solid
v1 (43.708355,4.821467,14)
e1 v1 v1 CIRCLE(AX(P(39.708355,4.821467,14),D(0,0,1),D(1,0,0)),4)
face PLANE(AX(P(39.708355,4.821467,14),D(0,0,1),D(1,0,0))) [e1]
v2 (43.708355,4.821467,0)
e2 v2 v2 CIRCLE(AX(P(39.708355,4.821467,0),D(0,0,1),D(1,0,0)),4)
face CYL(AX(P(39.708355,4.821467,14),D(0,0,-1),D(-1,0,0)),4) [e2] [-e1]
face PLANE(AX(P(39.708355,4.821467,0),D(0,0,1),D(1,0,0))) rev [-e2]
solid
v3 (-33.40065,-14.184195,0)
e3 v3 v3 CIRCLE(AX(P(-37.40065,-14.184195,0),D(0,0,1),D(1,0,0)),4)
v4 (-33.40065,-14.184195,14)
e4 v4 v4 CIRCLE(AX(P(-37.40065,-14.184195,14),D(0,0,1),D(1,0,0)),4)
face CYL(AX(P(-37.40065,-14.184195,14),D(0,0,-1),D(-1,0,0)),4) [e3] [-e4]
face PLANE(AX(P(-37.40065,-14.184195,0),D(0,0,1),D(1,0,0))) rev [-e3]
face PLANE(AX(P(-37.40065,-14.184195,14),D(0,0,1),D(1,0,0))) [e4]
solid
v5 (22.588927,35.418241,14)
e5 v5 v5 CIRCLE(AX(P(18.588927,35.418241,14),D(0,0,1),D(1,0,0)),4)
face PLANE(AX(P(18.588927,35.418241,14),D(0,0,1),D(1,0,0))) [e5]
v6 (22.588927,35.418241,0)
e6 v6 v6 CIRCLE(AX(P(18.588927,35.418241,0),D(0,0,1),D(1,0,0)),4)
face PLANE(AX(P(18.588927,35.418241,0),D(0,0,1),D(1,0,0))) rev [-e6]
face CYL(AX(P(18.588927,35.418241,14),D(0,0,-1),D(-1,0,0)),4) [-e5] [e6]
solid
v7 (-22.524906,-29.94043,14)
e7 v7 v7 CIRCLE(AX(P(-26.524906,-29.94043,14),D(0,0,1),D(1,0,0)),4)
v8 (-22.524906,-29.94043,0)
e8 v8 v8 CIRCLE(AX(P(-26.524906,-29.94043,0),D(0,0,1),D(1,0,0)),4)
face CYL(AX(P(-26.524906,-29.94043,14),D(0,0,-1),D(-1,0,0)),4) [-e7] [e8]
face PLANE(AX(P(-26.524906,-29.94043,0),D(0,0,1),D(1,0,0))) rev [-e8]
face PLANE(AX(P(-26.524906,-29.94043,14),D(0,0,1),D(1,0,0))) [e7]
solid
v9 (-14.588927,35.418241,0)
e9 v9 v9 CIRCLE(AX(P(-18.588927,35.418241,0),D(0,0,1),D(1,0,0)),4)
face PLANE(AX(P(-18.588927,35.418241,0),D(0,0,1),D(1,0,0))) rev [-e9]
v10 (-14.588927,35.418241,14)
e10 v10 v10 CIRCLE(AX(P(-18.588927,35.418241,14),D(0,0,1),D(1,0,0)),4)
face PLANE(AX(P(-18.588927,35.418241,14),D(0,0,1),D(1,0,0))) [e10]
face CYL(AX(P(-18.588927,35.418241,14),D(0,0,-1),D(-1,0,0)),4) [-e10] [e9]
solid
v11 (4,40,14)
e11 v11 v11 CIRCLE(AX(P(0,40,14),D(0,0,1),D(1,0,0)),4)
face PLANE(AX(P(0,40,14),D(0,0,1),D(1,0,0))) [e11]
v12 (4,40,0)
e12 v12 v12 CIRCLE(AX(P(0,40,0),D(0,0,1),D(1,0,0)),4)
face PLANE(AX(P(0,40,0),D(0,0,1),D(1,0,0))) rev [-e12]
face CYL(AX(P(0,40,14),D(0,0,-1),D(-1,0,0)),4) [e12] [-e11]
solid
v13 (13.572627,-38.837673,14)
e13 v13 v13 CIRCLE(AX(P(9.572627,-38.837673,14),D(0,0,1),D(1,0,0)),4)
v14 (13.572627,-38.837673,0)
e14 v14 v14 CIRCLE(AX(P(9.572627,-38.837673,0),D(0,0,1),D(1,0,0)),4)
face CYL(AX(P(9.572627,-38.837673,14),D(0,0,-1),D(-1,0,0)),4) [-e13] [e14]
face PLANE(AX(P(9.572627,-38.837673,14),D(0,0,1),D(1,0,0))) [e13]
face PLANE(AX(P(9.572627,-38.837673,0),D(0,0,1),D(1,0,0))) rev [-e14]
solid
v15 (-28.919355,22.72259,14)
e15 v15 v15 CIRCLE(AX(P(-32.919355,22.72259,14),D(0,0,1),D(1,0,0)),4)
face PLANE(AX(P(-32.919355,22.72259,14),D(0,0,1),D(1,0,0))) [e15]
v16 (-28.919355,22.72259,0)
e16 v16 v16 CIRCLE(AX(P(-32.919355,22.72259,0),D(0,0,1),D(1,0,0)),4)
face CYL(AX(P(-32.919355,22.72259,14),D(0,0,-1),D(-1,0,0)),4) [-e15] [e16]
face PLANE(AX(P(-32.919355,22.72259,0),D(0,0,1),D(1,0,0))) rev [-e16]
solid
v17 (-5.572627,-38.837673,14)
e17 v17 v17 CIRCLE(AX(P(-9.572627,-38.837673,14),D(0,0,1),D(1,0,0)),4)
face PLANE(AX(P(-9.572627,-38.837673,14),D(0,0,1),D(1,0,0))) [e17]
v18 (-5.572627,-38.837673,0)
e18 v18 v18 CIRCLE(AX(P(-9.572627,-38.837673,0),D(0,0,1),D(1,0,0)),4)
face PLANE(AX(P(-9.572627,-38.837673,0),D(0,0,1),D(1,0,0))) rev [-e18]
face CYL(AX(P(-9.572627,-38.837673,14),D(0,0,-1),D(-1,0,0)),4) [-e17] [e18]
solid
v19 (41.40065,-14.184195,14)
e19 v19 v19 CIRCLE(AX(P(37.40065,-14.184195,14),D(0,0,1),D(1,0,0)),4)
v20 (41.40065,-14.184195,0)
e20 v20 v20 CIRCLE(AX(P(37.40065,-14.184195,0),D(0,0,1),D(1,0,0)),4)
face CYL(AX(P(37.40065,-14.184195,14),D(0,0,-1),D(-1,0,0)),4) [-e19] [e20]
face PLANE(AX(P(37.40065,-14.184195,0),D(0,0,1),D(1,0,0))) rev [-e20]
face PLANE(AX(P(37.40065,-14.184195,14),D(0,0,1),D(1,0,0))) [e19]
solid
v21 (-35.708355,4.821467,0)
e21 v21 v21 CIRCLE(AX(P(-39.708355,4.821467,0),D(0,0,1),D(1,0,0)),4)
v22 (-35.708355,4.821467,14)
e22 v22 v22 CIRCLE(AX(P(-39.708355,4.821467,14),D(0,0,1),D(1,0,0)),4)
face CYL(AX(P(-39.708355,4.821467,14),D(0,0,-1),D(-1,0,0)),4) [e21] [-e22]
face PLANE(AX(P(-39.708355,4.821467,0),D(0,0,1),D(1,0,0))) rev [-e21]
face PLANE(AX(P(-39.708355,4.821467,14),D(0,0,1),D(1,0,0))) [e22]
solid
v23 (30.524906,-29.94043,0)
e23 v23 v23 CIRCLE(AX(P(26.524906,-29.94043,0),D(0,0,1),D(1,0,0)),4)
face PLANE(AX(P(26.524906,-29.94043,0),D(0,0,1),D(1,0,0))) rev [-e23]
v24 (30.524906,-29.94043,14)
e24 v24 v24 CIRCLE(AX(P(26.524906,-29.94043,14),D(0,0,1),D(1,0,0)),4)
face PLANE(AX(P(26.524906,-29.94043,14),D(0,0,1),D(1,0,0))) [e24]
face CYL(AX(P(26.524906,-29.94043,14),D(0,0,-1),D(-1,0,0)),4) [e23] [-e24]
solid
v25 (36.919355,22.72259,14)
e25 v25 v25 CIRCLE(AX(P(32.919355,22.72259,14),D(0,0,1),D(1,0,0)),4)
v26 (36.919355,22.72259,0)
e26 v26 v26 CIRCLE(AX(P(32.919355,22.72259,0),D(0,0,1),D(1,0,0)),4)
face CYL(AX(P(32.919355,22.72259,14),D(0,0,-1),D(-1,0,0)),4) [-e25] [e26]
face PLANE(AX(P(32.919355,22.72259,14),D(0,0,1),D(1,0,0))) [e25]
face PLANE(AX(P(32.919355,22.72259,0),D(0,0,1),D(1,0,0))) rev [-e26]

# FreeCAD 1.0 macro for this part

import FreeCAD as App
import Part
import Sketcher
Q = App.Units.Quantity

doc = App.newDocument("Part")
body = doc.addObject("PartDesign::Body", "Body")

# Sketch on XY plane
sketch1 = body.newObject("Sketcher::SketchObject", "Sketch")
sketch1.AttachmentSupport = (doc.getObject("XY_Plane"), [""])
sketch1.MapMode = "FlatFace"
sketch1.addGeometry(Part.Circle(App.Vector(0, 40, 0), App.Vector(0, 0, 1), 4), False)
sketch1.addConstraint([
    Sketcher.Constraint("PointOnObject", 0, 3, -2),
    Sketcher.Constraint("Diameter", 0, Q("8 mm")),
    Sketcher.Constraint("DistanceY", -1, 1, 0, 3, Q("40 mm")),
])
pad1 = body.newObject("PartDesign::Pad", "Pad")
pad1.Profile = sketch1
pad1.Length = 14
body2 = doc.addObject("PartDesign::Body", "Body001")

# Sketch on XY plane
sketch2 = body2.newObject("Sketcher::SketchObject", "Sketch001")
sketch2.AttachmentSupport = (doc.getObject("XY_Plane001"), [""])
sketch2.MapMode = "FlatFace"
sketch2.addGeometry(Part.Circle(App.Vector(18.6, 35.4, 0), App.Vector(0, 0, 1), 4), False)
sketch2.addConstraint([
    Sketcher.Constraint("Diameter", 0, Q("8 mm")),
    Sketcher.Constraint("DistanceY", -1, 1, 0, 3, Q("35.418241 mm")),
    Sketcher.Constraint("DistanceX", -1, 1, 0, 3, Q("18.588927 mm")),
])
pad2 = body2.newObject("PartDesign::Pad", "Pad001")
pad2.Profile = sketch2
pad2.Length = 14
body3 = doc.addObject("PartDesign::Body", "Body002")

# Sketch on XY plane
sketch3 = body3.newObject("Sketcher::SketchObject", "Sketch002")
sketch3.AttachmentSupport = (doc.getObject("XY_Plane002"), [""])
sketch3.MapMode = "FlatFace"
sketch3.addGeometry(Part.Circle(App.Vector(32.9, 22.7, 0), App.Vector(0, 0, 1), 4), False)
sketch3.addConstraint([
    Sketcher.Constraint("Diameter", 0, Q("8 mm")),
    Sketcher.Constraint("DistanceY", -1, 1, 0, 3, Q("22.72259 mm")),
    Sketcher.Constraint("DistanceX", -1, 1, 0, 3, Q("32.919355 mm")),
])
pad3 = body3.newObject("PartDesign::Pad", "Pad002")
pad3.Profile = sketch3
pad3.Length = 14
body4 = doc.addObject("PartDesign::Body", "Body003")

# Sketch on XY plane
sketch4 = body4.newObject("Sketcher::SketchObject", "Sketch003")
sketch4.AttachmentSupport = (doc.getObject("XY_Plane003"), [""])
sketch4.MapMode = "FlatFace"
sketch4.addGeometry(Part.Circle(App.Vector(39.7, 4.8, 0), App.Vector(0, 0, 1), 4), False)
sketch4.addConstraint([
    Sketcher.Constraint("Diameter", 0, Q("8 mm")),
    Sketcher.Constraint("DistanceX", -1, 1, 0, 3, Q("39.708355 mm")),
    Sketcher.Constraint("DistanceY", -1, 1, 0, 3, Q("4.821467 mm")),
])
pad4 = body4.newObject("PartDesign::Pad", "Pad003")
pad4.Profile = sketch4
pad4.Length = 14
body5 = doc.addObject("PartDesign::Body", "Body004")

# Sketch on XY plane
sketch5 = body5.newObject("Sketcher::SketchObject", "Sketch004")
sketch5.AttachmentSupport = (doc.getObject("XY_Plane004"), [""])
sketch5.MapMode = "FlatFace"
sketch5.addGeometry(Part.Circle(App.Vector(37.4, -14.2, 0), App.Vector(0, 0, 1), 4), False)
sketch5.addConstraint([
    Sketcher.Constraint("Diameter", 0, Q("8 mm")),
    Sketcher.Constraint("DistanceX", -1, 1, 0, 3, Q("37.40065 mm")),
    Sketcher.Constraint("DistanceY", 0, 3, -1, 1, Q("14.184195 mm")),
])
pad5 = body5.newObject("PartDesign::Pad", "Pad004")
pad5.Profile = sketch5
pad5.Length = 14
body6 = doc.addObject("PartDesign::Body", "Body005")

# Sketch on XY plane
sketch6 = body6.newObject("Sketcher::SketchObject", "Sketch005")
sketch6.AttachmentSupport = (doc.getObject("XY_Plane005"), [""])
sketch6.MapMode = "FlatFace"
sketch6.addGeometry(Part.Circle(App.Vector(26.5, -29.9, 0), App.Vector(0, 0, 1), 4), False)
sketch6.addConstraint([
    Sketcher.Constraint("Diameter", 0, Q("8 mm")),
    Sketcher.Constraint("DistanceY", 0, 3, -1, 1, Q("29.94043 mm")),
    Sketcher.Constraint("DistanceX", -1, 1, 0, 3, Q("26.524906 mm")),
])
pad6 = body6.newObject("PartDesign::Pad", "Pad005")
pad6.Profile = sketch6
pad6.Length = 14
body7 = doc.addObject("PartDesign::Body", "Body006")

# Sketch on XY plane
sketch7 = body7.newObject("Sketcher::SketchObject", "Sketch006")
sketch7.AttachmentSupport = (doc.getObject("XY_Plane006"), [""])
sketch7.MapMode = "FlatFace"
sketch7.addGeometry(Part.Circle(App.Vector(9.6, -38.8, 0), App.Vector(0, 0, 1), 4), False)
sketch7.addConstraint([
    Sketcher.Constraint("Diameter", 0, Q("8 mm")),
    Sketcher.Constraint("DistanceX", -1, 1, 0, 3, Q("9.572627 mm")),
    Sketcher.Constraint("DistanceY", 0, 3, -1, 1, Q("38.837673 mm")),
])
pad7 = body7.newObject("PartDesign::Pad", "Pad006")
pad7.Profile = sketch7
pad7.Length = 14
body8 = doc.addObject("PartDesign::Body", "Body007")

# Sketch on XY plane
sketch8 = body8.newObject("Sketcher::SketchObject", "Sketch007")
sketch8.AttachmentSupport = (doc.getObject("XY_Plane007"), [""])
sketch8.MapMode = "FlatFace"
sketch8.addGeometry(Part.Circle(App.Vector(-9.6, -38.8, 0), App.Vector(0, 0, 1), 4), False)
sketch8.addConstraint([
    Sketcher.Constraint("Diameter", 0, Q("8 mm")),
    Sketcher.Constraint("DistanceX", 0, 3, -1, 1, Q("9.572627 mm")),
    Sketcher.Constraint("DistanceY", 0, 3, -1, 1, Q("38.837673 mm")),
])
pad8 = body8.newObject("PartDesign::Pad", "Pad007")
pad8.Profile = sketch8
pad8.Length = 14
body9 = doc.addObject("PartDesign::Body", "Body008")

# Sketch on XY plane
sketch9 = body9.newObject("Sketcher::SketchObject", "Sketch008")
sketch9.AttachmentSupport = (doc.getObject("XY_Plane008"), [""])
sketch9.MapMode = "FlatFace"
sketch9.addGeometry(Part.Circle(App.Vector(-26.5, -29.9, 0), App.Vector(0, 0, 1), 4), False)
sketch9.addConstraint([
    Sketcher.Constraint("Diameter", 0, Q("8 mm")),
    Sketcher.Constraint("DistanceY", 0, 3, -1, 1, Q("29.94043 mm")),
    Sketcher.Constraint("DistanceX", 0, 3, -1, 1, Q("26.524906 mm")),
])
pad9 = body9.newObject("PartDesign::Pad", "Pad008")
pad9.Profile = sketch9
pad9.Length = 14
body10 = doc.addObject("PartDesign::Body", "Body009")

# Sketch on XY plane
sketch10 = body10.newObject("Sketcher::SketchObject", "Sketch009")
sketch10.AttachmentSupport = (doc.getObject("XY_Plane009"), [""])
sketch10.MapMode = "FlatFace"
sketch10.addGeometry(Part.Circle(App.Vector(-37.4, -14.2, 0), App.Vector(0, 0, 1), 4), False)
sketch10.addConstraint([
    Sketcher.Constraint("Diameter", 0, Q("8 mm")),
    Sketcher.Constraint("DistanceX", 0, 3, -1, 1, Q("37.40065 mm")),
    Sketcher.Constraint("DistanceY", 0, 3, -1, 1, Q("14.184195 mm")),
])
pad10 = body10.newObject("PartDesign::Pad", "Pad009")
pad10.Profile = sketch10
pad10.Length = 14
body11 = doc.addObject("PartDesign::Body", "Body010")

# Sketch on XY plane
sketch11 = body11.newObject("Sketcher::SketchObject", "Sketch010")
sketch11.AttachmentSupport = (doc.getObject("XY_Plane010"), [""])
sketch11.MapMode = "FlatFace"
sketch11.addGeometry(Part.Circle(App.Vector(-39.7, 4.8, 0), App.Vector(0, 0, 1), 4), False)
sketch11.addConstraint([
    Sketcher.Constraint("Diameter", 0, Q("8 mm")),
    Sketcher.Constraint("DistanceX", 0, 3, -1, 1, Q("39.708355 mm")),
    Sketcher.Constraint("DistanceY", -1, 1, 0, 3, Q("4.821467 mm")),
])
pad11 = body11.newObject("PartDesign::Pad", "Pad010")
pad11.Profile = sketch11
pad11.Length = 14
body12 = doc.addObject("PartDesign::Body", "Body011")

# Sketch on XY plane
sketch12 = body12.newObject("Sketcher::SketchObject", "Sketch011")
sketch12.AttachmentSupport = (doc.getObject("XY_Plane011"), [""])
sketch12.MapMode = "FlatFace"
sketch12.addGeometry(Part.Circle(App.Vector(-32.9, 22.7, 0), App.Vector(0, 0, 1), 4), False)
sketch12.addConstraint([
    Sketcher.Constraint("Diameter", 0, Q("8 mm")),
    Sketcher.Constraint("DistanceY", -1, 1, 0, 3, Q("22.72259 mm")),
    Sketcher.Constraint("DistanceX", 0, 3, -1, 1, Q("32.919355 mm")),
])
pad12 = body12.newObject("PartDesign::Pad", "Pad011")
pad12.Profile = sketch12
pad12.Length = 14
body13 = doc.addObject("PartDesign::Body", "Body012")

# Sketch on XY plane
sketch13 = body13.newObject("Sketcher::SketchObject", "Sketch012")
sketch13.AttachmentSupport = (doc.getObject("XY_Plane012"), [""])
sketch13.MapMode = "FlatFace"
sketch13.addGeometry(Part.Circle(App.Vector(-18.6, 35.4, 0), App.Vector(0, 0, 1), 4), False)
sketch13.addConstraint([
    Sketcher.Constraint("Diameter", 0, Q("8 mm")),
    Sketcher.Constraint("DistanceY", -1, 1, 0, 3, Q("35.418241 mm")),
    Sketcher.Constraint("DistanceX", 0, 3, -1, 1, Q("18.588927 mm")),
])
pad13 = body13.newObject("PartDesign::Pad", "Pad012")
pad13.Profile = sketch13
pad13.Length = 14

doc.recompute()
